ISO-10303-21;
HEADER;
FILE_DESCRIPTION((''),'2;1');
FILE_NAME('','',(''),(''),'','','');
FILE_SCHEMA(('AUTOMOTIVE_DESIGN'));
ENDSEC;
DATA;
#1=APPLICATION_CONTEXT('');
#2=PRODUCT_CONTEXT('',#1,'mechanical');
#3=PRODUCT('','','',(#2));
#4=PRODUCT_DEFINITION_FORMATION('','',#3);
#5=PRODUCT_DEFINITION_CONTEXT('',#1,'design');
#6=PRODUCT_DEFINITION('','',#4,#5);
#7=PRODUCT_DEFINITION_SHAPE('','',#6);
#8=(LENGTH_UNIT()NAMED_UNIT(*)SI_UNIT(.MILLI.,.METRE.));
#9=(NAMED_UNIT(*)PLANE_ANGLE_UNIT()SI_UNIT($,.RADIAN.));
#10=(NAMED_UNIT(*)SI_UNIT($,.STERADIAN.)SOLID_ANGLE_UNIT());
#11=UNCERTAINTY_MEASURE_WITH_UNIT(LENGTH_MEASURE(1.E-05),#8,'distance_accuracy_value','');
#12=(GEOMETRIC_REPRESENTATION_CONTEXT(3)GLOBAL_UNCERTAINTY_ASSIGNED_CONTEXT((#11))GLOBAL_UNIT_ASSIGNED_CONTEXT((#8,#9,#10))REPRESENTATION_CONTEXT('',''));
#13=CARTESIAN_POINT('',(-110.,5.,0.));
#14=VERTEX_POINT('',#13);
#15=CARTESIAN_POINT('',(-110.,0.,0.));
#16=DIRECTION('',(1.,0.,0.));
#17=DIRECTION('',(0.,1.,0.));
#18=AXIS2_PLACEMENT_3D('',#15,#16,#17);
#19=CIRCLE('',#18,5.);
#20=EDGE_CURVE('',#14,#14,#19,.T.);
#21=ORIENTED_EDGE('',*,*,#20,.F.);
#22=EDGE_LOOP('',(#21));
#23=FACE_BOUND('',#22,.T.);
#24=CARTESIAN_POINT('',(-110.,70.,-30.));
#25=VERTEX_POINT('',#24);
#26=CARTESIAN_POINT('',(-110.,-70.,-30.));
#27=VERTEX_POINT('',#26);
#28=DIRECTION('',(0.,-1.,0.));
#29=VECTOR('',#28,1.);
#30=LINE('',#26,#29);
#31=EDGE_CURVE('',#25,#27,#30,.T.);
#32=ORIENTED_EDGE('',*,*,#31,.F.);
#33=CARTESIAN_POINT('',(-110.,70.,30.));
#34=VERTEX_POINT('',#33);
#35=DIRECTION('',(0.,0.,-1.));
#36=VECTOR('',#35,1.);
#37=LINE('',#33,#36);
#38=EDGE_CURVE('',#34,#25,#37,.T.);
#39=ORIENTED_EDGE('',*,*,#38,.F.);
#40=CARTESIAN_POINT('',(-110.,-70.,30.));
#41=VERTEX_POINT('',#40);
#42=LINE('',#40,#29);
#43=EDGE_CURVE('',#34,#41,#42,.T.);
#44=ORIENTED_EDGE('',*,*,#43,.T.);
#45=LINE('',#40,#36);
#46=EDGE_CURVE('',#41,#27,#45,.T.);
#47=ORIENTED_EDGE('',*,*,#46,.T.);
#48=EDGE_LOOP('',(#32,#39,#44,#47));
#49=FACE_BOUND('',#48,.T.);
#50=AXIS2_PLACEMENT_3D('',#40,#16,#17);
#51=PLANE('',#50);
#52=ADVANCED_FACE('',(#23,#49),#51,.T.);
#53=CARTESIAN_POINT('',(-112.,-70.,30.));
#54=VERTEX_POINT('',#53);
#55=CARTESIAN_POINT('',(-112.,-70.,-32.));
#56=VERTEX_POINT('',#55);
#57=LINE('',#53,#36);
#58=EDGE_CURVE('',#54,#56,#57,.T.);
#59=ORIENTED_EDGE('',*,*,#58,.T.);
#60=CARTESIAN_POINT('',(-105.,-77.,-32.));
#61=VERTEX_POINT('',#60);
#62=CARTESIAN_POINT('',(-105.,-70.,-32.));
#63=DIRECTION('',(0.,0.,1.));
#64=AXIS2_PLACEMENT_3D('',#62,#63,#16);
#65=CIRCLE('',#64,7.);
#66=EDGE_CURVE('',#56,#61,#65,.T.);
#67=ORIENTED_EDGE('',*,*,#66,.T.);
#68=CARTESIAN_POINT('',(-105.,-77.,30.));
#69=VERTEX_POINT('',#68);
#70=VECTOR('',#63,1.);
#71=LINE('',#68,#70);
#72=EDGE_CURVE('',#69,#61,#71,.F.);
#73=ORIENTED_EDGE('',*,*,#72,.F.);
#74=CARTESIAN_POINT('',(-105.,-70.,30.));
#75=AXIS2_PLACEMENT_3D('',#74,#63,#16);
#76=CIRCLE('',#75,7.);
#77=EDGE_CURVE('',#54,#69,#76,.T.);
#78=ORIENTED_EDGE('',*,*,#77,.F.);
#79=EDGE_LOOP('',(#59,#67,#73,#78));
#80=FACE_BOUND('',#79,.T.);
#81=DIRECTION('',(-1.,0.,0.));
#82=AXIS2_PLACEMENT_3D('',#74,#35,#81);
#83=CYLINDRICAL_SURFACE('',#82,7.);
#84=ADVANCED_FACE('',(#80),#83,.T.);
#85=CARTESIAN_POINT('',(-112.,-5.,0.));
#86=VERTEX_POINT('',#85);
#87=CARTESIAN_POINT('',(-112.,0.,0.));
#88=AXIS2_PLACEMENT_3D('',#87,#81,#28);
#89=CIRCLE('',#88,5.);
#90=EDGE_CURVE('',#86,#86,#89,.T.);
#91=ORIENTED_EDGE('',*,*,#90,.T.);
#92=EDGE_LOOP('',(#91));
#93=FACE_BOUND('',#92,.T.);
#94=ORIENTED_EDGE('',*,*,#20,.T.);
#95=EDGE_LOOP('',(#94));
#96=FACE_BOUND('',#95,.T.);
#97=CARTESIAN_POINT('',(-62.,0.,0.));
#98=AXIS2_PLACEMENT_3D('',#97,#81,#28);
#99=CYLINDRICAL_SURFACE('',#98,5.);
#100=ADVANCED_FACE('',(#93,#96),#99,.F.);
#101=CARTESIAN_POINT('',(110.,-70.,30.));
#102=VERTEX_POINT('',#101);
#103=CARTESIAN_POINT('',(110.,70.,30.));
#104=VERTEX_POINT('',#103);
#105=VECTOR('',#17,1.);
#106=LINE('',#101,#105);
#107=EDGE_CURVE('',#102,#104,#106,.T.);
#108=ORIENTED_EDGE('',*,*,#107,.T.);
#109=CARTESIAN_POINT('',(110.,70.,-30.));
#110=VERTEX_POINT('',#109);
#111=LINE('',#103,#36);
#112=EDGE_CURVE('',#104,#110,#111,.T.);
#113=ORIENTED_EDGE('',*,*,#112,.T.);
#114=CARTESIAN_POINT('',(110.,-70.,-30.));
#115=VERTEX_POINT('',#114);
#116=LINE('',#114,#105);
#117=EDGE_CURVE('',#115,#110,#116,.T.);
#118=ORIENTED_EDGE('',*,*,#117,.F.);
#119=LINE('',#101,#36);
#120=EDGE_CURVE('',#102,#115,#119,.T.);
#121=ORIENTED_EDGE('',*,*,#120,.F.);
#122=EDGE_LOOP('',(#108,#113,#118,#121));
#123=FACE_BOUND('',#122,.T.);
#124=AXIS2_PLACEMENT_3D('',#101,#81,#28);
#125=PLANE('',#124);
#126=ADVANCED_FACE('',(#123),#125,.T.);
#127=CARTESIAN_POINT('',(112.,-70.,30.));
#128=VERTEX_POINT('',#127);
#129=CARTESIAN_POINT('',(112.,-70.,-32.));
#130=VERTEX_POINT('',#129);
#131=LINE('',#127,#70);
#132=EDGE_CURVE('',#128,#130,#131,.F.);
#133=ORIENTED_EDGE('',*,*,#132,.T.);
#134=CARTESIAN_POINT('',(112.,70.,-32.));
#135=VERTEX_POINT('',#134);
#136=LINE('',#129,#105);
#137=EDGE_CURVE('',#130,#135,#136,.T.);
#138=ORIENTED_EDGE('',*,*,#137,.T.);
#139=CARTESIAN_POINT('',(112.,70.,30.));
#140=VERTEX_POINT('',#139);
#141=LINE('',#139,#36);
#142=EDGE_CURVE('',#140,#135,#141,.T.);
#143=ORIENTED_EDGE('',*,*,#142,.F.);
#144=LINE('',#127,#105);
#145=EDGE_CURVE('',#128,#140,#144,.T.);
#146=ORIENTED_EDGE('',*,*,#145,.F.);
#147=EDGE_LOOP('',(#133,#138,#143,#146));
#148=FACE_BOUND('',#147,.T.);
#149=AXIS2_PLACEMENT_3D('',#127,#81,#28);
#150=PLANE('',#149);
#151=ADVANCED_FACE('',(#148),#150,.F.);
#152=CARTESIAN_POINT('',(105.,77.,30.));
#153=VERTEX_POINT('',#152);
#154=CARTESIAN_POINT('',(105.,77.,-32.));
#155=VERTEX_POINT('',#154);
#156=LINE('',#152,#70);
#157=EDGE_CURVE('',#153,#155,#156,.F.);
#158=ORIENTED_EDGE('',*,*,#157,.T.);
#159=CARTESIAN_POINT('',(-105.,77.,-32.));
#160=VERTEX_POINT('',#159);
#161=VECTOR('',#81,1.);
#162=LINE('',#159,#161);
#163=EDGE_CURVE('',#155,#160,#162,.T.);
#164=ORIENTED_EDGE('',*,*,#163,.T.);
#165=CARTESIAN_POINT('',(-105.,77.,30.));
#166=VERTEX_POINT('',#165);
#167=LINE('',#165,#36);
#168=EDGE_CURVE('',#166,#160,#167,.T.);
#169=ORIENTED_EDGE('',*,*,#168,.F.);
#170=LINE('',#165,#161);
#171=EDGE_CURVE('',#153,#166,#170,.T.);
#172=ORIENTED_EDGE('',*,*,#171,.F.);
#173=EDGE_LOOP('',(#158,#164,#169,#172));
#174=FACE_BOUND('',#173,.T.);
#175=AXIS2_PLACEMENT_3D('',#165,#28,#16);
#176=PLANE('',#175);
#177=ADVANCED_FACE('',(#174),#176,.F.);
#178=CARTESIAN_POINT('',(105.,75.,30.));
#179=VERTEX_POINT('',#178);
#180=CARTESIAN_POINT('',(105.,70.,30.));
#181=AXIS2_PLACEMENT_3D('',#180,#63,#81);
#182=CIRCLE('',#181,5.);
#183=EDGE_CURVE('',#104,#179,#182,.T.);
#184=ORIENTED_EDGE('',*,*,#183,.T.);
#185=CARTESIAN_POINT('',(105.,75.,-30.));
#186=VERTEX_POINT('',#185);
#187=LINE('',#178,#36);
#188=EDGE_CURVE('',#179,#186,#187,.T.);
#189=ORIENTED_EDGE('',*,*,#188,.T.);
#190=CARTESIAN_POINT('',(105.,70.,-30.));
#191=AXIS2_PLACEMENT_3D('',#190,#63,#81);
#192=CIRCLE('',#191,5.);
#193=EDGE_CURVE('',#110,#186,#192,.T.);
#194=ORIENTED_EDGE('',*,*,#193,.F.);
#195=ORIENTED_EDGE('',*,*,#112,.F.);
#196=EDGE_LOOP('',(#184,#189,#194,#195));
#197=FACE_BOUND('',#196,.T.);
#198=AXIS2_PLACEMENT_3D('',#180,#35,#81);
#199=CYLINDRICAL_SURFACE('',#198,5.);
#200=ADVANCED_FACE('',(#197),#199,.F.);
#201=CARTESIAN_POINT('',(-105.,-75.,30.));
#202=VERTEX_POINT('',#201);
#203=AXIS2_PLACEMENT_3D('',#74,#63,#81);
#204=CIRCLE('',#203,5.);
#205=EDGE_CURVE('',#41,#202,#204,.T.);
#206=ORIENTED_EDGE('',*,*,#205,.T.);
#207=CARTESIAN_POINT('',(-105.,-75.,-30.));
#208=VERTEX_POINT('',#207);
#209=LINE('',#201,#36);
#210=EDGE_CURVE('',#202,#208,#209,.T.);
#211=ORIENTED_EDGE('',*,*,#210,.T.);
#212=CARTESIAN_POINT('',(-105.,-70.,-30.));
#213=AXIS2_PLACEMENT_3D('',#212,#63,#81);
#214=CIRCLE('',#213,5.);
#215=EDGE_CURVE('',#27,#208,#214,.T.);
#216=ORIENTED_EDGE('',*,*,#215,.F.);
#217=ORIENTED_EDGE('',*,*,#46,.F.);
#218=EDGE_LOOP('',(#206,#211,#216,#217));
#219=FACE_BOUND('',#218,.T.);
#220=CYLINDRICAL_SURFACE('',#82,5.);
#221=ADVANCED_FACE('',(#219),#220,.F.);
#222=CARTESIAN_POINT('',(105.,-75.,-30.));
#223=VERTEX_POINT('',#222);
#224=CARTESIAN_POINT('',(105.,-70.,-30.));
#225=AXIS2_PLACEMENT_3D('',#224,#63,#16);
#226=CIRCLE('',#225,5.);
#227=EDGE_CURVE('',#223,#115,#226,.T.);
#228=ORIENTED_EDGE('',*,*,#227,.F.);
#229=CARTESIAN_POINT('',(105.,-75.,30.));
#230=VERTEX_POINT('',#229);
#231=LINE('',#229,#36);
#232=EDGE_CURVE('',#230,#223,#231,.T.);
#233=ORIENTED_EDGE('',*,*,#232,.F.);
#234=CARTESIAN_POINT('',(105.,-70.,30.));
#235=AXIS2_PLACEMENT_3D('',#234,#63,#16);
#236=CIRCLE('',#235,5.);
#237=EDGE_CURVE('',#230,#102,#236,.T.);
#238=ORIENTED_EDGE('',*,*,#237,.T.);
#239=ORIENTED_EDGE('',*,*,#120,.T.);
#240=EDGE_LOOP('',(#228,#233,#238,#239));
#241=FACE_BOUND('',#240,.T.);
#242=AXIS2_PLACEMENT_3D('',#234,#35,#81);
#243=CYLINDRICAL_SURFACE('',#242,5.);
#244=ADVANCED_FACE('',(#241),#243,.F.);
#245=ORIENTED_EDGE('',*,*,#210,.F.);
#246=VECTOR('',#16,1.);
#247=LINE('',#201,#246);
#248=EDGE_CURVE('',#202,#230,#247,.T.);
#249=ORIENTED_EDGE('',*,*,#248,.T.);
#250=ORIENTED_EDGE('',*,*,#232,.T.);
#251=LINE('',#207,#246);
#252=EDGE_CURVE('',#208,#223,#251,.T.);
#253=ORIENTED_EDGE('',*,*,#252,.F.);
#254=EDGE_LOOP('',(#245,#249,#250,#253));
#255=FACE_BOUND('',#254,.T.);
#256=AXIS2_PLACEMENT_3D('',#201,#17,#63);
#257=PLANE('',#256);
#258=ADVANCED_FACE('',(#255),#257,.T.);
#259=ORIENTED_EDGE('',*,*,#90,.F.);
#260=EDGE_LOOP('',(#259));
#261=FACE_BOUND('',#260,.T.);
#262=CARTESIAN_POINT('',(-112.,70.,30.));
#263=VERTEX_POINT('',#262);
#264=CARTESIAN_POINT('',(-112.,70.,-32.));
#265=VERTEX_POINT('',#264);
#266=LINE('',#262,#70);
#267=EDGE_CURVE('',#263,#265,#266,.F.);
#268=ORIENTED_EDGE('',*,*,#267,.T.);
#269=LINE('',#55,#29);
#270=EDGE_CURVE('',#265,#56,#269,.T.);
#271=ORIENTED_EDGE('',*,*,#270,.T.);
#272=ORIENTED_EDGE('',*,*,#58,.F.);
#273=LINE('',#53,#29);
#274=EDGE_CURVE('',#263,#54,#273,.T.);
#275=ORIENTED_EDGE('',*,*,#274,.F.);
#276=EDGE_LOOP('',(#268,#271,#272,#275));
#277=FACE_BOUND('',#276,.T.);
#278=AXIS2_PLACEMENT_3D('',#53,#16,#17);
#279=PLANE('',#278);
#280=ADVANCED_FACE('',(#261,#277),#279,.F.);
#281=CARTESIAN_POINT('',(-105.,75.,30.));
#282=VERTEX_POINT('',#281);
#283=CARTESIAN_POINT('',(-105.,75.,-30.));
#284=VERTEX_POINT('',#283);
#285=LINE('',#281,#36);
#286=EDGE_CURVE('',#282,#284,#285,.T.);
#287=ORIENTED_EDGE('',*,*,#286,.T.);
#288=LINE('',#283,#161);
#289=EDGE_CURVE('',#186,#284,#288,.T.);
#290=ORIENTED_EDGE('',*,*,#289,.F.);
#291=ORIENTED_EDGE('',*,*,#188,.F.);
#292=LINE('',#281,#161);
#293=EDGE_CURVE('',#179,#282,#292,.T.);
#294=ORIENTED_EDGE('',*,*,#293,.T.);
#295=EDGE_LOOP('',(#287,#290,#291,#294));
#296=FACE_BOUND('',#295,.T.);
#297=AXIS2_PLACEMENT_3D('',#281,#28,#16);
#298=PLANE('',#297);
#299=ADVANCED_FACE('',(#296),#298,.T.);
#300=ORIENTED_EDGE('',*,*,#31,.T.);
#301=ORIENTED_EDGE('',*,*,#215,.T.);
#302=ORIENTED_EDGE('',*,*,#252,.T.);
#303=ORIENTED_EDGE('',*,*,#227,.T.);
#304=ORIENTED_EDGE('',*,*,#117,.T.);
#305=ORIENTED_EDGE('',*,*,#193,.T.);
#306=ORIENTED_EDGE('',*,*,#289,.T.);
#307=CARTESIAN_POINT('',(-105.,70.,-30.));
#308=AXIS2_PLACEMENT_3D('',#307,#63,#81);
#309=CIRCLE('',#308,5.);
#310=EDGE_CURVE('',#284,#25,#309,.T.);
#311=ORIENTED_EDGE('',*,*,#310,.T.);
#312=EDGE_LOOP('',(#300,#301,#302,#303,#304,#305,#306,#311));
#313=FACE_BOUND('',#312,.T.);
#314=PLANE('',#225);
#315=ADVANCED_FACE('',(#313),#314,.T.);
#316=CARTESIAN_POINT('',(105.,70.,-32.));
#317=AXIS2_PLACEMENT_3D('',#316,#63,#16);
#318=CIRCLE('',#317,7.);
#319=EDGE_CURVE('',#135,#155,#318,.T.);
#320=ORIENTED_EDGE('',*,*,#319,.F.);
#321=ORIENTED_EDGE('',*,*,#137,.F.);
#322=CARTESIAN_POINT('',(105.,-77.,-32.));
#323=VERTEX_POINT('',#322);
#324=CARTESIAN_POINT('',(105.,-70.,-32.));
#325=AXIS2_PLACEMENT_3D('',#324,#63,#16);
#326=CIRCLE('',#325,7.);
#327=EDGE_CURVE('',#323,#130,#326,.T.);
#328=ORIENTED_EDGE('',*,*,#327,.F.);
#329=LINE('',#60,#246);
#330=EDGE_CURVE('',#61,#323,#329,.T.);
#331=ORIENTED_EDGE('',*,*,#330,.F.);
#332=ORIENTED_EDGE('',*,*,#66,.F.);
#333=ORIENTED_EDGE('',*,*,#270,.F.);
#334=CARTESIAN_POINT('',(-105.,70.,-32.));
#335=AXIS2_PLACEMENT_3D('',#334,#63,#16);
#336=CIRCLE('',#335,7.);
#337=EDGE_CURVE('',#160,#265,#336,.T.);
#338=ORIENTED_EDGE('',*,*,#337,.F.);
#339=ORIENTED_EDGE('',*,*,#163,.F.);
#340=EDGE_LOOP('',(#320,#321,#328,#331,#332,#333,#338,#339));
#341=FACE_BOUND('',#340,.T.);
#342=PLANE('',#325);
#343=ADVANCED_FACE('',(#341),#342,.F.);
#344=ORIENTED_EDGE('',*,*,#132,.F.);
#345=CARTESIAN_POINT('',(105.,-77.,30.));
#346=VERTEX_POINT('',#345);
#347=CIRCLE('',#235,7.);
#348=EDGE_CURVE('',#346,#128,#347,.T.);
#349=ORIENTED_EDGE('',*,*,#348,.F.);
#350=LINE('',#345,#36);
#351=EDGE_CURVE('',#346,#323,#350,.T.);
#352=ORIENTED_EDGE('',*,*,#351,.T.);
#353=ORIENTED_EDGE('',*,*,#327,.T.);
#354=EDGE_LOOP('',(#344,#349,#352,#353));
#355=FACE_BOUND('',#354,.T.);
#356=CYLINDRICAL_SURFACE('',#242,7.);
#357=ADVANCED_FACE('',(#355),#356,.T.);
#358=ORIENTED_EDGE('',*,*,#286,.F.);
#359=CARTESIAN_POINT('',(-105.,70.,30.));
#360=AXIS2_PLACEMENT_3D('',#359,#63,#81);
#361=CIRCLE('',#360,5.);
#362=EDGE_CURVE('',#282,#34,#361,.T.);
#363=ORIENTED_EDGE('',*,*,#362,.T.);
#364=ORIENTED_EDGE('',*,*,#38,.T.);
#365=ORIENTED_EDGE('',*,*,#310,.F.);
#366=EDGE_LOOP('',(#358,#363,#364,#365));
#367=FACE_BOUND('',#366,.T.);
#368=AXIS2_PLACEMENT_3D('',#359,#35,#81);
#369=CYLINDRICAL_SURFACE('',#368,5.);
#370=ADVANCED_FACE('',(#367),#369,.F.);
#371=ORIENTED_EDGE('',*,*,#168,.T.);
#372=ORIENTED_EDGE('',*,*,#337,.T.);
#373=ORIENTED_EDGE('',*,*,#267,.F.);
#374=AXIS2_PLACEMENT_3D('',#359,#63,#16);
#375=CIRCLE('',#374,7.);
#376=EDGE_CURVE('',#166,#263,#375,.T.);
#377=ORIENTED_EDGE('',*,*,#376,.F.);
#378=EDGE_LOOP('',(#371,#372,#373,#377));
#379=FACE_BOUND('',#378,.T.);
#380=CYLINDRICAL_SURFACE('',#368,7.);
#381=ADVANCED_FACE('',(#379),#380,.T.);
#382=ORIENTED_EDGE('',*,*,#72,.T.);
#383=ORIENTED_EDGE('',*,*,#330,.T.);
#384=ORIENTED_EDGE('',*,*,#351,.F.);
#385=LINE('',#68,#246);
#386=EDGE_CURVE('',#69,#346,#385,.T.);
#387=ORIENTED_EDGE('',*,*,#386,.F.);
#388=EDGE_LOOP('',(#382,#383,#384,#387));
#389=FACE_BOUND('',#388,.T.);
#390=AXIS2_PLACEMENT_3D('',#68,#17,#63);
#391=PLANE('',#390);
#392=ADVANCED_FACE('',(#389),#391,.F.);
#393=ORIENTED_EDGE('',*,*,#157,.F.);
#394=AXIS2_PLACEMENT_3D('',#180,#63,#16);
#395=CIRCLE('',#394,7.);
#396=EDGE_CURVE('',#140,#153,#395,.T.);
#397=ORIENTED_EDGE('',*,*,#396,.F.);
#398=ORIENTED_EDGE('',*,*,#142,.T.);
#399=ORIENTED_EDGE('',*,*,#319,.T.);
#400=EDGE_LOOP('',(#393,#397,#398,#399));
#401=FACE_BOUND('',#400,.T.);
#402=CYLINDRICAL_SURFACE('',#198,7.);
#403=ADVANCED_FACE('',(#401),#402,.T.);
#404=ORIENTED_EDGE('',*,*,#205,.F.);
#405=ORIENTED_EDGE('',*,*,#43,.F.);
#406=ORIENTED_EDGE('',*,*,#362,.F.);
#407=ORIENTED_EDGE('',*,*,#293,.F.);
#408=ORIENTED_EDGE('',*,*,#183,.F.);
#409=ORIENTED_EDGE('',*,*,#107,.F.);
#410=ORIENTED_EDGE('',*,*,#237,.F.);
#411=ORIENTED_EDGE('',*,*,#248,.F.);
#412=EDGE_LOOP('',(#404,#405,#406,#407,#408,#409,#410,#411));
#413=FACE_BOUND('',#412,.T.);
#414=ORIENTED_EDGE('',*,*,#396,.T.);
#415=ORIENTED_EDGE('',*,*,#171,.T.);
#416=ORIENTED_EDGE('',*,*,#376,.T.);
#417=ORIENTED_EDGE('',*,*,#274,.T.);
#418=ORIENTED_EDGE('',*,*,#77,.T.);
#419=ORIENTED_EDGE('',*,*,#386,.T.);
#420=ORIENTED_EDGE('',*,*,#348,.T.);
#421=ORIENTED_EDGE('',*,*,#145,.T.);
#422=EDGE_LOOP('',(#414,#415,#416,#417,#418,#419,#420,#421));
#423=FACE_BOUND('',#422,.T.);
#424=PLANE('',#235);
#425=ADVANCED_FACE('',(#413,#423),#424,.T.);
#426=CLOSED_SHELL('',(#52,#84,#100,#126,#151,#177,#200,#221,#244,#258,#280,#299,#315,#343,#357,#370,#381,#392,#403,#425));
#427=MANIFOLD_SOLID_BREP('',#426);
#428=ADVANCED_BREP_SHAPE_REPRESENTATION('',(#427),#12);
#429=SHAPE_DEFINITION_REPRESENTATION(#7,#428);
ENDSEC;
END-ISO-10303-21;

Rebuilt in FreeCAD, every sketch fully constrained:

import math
import FreeCAD as App
import Part
import Sketcher

V = App.Vector


def faces_at(feature, points):
    """Names of the faces that lie closest to the given points."""
    faces = feature.Shape.Faces
    near = lambda p: min(range(len(faces)), key=lambda i: faces[i].distToShape(Part.Vertex(*p))[0])
    return sorted({f"Face{near(p) + 1}" for p in points})

doc = App.newDocument("Part")
body = doc.addObject("PartDesign::Body", "Body")

sketch1 = body.newObject("Sketcher::SketchObject", "Sketch")
sketch1.AttachmentSupport = (doc.getObject("XY_Plane"), [""])
sketch1.MapMode = "FlatFace"
sketch1.addGeometry([
    Part.LineSegment(V(-105, -75, 0), V(105, -75, 0)),
    Part.ArcOfCircle(Part.Circle(V(105, -70, 0), V(0, 0, 1), 5), math.radians(-90), math.radians(0)),
    Part.LineSegment(V(110, -70, 0), V(110, 70, 0)),
    Part.ArcOfCircle(Part.Circle(V(105, 70, 0), V(0, 0, 1), 5), math.radians(0), math.radians(90)),
    Part.LineSegment(V(105, 75, 0), V(-105, 75, 0)),
    Part.ArcOfCircle(Part.Circle(V(-105, 70, 0), V(0, 0, 1), 5), math.radians(90), math.radians(180)),
    Part.LineSegment(V(-110, 70, 0), V(-110, -70, 0)),
    Part.ArcOfCircle(Part.Circle(V(-105, -70, 0), V(0, 0, 1), 5), math.radians(180), math.radians(270)),
], False)
sketch1.addConstraint([
    Sketcher.Constraint("Tangent", 0, 2, 1, 1),
    Sketcher.Constraint("Tangent", 1, 2, 2, 1),
    Sketcher.Constraint("Tangent", 2, 2, 3, 1),
    Sketcher.Constraint("Tangent", 3, 2, 4, 1),
    Sketcher.Constraint("Tangent", 4, 2, 5, 1),
    Sketcher.Constraint("Tangent", 5, 2, 6, 1),
    Sketcher.Constraint("Tangent", 6, 2, 7, 1),
    Sketcher.Constraint("Tangent", 7, 2, 0, 1),
    Sketcher.Constraint("Horizontal", 0),
    Sketcher.Constraint("Vertical", 2),
    Sketcher.Constraint("Horizontal", 4),
    Sketcher.Constraint("Vertical", 6),
    Sketcher.Constraint("Equal", 1, 3),
    Sketcher.Constraint("Equal", 3, 5),
    Sketcher.Constraint("Equal", 5, 7),
    Sketcher.Constraint("Symmetric", 1, 3, 5, 3, -1, 1),
    Sketcher.Constraint("Radius", 1, 5.0),
    Sketcher.Constraint("DistanceX", 0, 1, 0, 2, 210.0),
    Sketcher.Constraint("DistanceY", 2, 1, 2, 2, 140.0),
])
pad1 = body.newObject("PartDesign::Pad", "Pad")
pad1.Profile = sketch1
pad1.Length = 60
pad1.Midplane = True
doc.recompute()

thickness = body.newObject("PartDesign::Thickness", "Thickness")
thickness.Base = (pad1, faces_at(pad1, [(0, 0, 30)]))
thickness.Value = 2
thickness.Reversed = False
thickness.Join = "Intersection"

sketch2 = body.newObject("Sketcher::SketchObject", "Sketch001")
sketch2.AttachmentSupport = (doc.getObject("YZ_Plane"), [""])
sketch2.MapMode = "FlatFace"
sketch2.AttachmentOffset = App.Placement(V(0, 0, -112), App.Rotation())
sketch2.addGeometry(Part.Circle(V(0, 0, 0), V(0, 0, 1), 5), False)
sketch2.addConstraint([
    Sketcher.Constraint("Coincident", 0, 3, -1, 1),
    Sketcher.Constraint("Diameter", 0, 10.0),
])
pocket1 = body.newObject("PartDesign::Pocket", "Pocket")
pocket1.Profile = sketch2
pocket1.Length = 50
pocket1.Reversed = True

doc.recompute()
